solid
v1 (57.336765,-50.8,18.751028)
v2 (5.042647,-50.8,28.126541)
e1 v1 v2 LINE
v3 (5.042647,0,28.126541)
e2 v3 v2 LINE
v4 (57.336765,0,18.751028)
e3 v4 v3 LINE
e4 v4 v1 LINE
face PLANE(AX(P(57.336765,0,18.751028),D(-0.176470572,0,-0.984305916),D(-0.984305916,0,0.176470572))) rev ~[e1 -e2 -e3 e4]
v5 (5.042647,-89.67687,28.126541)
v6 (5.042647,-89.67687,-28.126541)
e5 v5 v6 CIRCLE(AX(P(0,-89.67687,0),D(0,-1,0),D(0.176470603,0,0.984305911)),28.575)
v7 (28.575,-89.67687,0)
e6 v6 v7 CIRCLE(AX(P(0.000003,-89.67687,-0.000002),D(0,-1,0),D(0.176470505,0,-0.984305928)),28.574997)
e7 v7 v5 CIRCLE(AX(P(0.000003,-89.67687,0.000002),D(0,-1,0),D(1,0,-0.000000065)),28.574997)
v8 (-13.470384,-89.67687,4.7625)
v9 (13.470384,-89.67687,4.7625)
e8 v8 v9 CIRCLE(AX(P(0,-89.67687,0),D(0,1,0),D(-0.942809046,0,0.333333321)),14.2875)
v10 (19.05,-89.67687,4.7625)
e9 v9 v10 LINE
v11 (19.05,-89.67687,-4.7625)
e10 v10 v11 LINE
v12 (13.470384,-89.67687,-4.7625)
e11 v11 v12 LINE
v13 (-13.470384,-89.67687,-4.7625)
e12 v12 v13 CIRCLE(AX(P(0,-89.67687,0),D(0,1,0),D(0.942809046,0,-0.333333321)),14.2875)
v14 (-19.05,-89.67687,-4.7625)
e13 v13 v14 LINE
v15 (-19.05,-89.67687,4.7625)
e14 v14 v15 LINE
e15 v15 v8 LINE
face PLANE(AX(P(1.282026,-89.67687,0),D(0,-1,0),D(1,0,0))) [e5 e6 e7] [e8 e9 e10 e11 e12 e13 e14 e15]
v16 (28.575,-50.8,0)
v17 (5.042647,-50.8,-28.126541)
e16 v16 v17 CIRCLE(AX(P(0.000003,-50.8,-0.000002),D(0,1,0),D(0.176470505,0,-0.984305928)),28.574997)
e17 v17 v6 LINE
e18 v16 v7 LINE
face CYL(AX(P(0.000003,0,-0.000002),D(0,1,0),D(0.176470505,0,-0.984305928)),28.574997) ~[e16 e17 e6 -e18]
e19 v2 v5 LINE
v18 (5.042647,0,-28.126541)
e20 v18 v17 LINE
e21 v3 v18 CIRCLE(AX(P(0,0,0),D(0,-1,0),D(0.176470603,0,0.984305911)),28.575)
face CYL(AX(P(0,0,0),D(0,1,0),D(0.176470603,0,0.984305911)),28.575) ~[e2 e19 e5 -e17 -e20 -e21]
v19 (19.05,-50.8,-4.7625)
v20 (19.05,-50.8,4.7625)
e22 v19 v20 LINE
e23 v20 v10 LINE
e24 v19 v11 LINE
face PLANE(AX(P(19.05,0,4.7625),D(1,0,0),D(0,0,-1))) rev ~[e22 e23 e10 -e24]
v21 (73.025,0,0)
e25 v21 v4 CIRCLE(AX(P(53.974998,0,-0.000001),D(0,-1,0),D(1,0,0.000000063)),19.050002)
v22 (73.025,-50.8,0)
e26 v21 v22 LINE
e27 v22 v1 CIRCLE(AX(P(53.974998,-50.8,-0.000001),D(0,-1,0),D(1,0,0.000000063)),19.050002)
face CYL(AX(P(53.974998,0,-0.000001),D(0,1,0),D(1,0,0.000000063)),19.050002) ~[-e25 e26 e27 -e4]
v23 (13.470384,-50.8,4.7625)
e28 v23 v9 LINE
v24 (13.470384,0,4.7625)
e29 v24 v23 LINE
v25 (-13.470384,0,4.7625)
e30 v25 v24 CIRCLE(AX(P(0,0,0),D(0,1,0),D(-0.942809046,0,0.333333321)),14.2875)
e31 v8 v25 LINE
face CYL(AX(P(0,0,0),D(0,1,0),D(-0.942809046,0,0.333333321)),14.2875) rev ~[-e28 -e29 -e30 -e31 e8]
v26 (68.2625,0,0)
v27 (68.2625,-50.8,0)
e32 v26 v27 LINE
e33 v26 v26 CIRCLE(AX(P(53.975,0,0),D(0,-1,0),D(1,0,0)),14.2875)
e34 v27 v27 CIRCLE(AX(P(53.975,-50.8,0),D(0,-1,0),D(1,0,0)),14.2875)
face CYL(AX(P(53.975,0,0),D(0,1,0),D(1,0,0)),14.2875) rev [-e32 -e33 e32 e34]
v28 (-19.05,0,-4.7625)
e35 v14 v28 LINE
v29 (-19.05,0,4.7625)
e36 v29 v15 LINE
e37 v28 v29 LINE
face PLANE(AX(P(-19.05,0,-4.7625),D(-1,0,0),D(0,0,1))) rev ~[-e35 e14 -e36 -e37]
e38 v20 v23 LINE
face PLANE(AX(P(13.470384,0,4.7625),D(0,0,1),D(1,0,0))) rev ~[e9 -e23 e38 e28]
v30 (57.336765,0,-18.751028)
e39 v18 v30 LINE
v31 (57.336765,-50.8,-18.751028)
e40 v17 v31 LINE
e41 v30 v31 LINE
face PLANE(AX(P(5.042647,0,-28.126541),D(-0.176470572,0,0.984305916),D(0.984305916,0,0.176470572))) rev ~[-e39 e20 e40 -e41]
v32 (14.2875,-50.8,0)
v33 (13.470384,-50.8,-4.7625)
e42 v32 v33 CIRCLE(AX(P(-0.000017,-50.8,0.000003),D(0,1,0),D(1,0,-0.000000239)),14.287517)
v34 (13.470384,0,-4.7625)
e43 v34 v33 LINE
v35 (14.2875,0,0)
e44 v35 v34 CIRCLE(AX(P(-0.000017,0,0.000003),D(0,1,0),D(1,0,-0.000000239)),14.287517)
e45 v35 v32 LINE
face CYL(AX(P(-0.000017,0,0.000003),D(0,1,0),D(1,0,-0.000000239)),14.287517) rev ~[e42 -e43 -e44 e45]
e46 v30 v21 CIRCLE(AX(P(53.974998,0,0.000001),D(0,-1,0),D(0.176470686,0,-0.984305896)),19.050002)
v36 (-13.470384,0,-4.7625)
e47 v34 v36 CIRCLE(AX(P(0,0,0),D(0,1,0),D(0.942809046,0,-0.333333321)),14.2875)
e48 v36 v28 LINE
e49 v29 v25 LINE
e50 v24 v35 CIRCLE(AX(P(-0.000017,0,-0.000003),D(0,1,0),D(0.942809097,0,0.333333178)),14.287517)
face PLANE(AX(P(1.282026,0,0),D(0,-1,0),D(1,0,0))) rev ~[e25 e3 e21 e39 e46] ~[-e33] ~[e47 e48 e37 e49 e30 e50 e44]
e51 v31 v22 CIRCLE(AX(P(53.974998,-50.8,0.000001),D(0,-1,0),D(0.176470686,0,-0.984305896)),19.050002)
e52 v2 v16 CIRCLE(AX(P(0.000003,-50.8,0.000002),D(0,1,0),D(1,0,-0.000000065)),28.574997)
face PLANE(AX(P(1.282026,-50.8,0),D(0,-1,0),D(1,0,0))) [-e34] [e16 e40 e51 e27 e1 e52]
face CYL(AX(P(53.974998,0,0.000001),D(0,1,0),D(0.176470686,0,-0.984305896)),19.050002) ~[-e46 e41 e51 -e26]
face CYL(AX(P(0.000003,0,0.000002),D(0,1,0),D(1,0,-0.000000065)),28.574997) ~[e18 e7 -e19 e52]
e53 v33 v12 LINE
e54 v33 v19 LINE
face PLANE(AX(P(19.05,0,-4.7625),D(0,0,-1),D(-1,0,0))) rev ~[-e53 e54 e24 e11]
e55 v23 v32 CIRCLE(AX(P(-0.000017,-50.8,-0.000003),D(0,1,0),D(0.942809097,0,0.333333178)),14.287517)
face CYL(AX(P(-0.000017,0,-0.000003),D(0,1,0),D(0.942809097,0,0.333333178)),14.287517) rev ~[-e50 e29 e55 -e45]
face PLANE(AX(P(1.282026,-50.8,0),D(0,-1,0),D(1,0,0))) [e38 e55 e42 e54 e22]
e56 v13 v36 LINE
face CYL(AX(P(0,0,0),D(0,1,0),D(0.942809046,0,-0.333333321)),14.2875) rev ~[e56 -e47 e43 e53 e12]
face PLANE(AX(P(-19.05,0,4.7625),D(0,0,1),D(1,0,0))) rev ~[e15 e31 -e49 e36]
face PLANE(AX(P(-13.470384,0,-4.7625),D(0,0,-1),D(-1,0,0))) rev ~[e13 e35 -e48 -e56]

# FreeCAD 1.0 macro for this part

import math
import FreeCAD as App
import Part
import Sketcher
Q = App.Units.Quantity

doc = App.newDocument("Part")
body = doc.addObject("PartDesign::Body", "Body")

# Sketch on XZ plane
sketch1 = body.newObject("Sketcher::SketchObject", "Sketch")
sketch1.AttachmentSupport = (doc.getObject("XZ_Plane"), [""])
sketch1.MapMode = "FlatFace"
sketch1.addGeometry(Part.ArcOfCircle(Part.Circle(App.Vector(0, 0, 0), App.Vector(0, 0, 1), 28.6), math.radians(80), math.radians(280)), False)
sketch1.addGeometry(Part.LineSegment(App.Vector(5, -28.1, 0), App.Vector(57.3, -18.8, 0)), False)
sketch1.addGeometry(Part.ArcOfCircle(Part.Circle(App.Vector(54, 0, 0), App.Vector(0, 0, 1), 19.1), math.radians(-80), math.radians(0)), False)
sketch1.addGeometry(Part.ArcOfCircle(Part.Circle(App.Vector(54, 0, 0), App.Vector(0, 0, 1), 19.1), math.radians(0), math.radians(80)), False)
sketch1.addGeometry(Part.LineSegment(App.Vector(57.3, 18.8, 0), App.Vector(5, 28.1, 0)), False)
sketch1.addGeometry(Part.LineSegment(App.Vector(-19.1, 4.8, 0), App.Vector(-13.5, 4.8, 0)), False)
sketch1.addGeometry(Part.ArcOfCircle(Part.Circle(App.Vector(0, 0, 0), App.Vector(0, 0, 1), 14.3), math.radians(19), math.radians(161)), False)
sketch1.addGeometry(Part.ArcOfCircle(Part.Circle(App.Vector(0, 0, 0), App.Vector(0, 0, 1), 14.3), math.radians(0), math.radians(19.47)), False)
sketch1.addGeometry(Part.ArcOfCircle(Part.Circle(App.Vector(0, 0, 0), App.Vector(0, 0, 1), 14.3), math.radians(-19.47), math.radians(0)), False)
sketch1.addGeometry(Part.ArcOfCircle(Part.Circle(App.Vector(0, 0, 0), App.Vector(0, 0, 1), 14.3), math.radians(-161), math.radians(-19)), False)
sketch1.addGeometry(Part.LineSegment(App.Vector(-13.5, -4.8, 0), App.Vector(-19.1, -4.8, 0)), False)
sketch1.addGeometry(Part.LineSegment(App.Vector(-19.1, -4.8, 0), App.Vector(-19.1, 4.8, 0)), False)
sketch1.addGeometry(Part.Circle(App.Vector(54, 0, 0), App.Vector(0, 0, 1), 14.3), False)
sketch1.addConstraint(Sketcher.Constraint("Tangent", 0, 2, 1, 1))
sketch1.addConstraint(Sketcher.Constraint("Tangent", 1, 2, 2, 1))
sketch1.addConstraint(Sketcher.Constraint("Tangent", 2, 2, 3, 1))
sketch1.addConstraint(Sketcher.Constraint("Tangent", 3, 2, 4, 1))
sketch1.addConstraint(Sketcher.Constraint("Tangent", 4, 2, 0, 1))
sketch1.addConstraint(Sketcher.Constraint("Coincident", 5, 2, 6, 2))
sketch1.addConstraint(Sketcher.Constraint("Tangent", 6, 1, 7, 2))
sketch1.addConstraint(Sketcher.Constraint("Tangent", 7, 1, 8, 2))
sketch1.addConstraint(Sketcher.Constraint("Tangent", 8, 1, 9, 2))
sketch1.addConstraint(Sketcher.Constraint("Coincident", 9, 1, 10, 1))
sketch1.addConstraint(Sketcher.Constraint("Coincident", 10, 2, 11, 1))
sketch1.addConstraint(Sketcher.Constraint("Coincident", 11, 2, 5, 1))
sketch1.addConstraint(Sketcher.Constraint("Horizontal", 5))
sketch1.addConstraint(Sketcher.Constraint("Horizontal", 10))
sketch1.addConstraint(Sketcher.Constraint("Vertical", 11))
sketch1.addConstraint(Sketcher.Constraint("Coincident", 0, 3, -1, 1))
sketch1.addConstraint(Sketcher.Constraint("Coincident", 6, 3, -1, 1))
sketch1.addConstraint(Sketcher.Constraint("Coincident", 9, 3, -1, 1))
sketch1.addConstraint(Sketcher.Constraint("Coincident", 12, 3, 2, 3))
sketch1.addConstraint(Sketcher.Constraint("Equal", 2, 3))
sketch1.addConstraint(Sketcher.Constraint("Equal", 7, 8))
sketch1.addConstraint(Sketcher.Constraint("Equal", 9, 12))
sketch1.addConstraint(Sketcher.Constraint("PointOnObject", 2, 3, -1))
sketch1.addConstraint(Sketcher.Constraint("PointOnObject", 2, 2, -1))
sketch1.addConstraint(Sketcher.Constraint("PointOnObject", 7, 1, -1))
sketch1.addConstraint(Sketcher.Constraint("Horizontal", 5, 2, 6, 1))
sketch1.addConstraint(Sketcher.Constraint("Horizontal", 8, 1, 9, 1))
sketch1.addConstraint(Sketcher.Constraint("Vertical", 6, 1, 8, 1))
sketch1.addConstraint(Sketcher.Constraint("Radius", 2, Q("0.7500001 in")))
sketch1.addConstraint(Sketcher.Constraint("Diameter", 12, Q("1.125 in")))
sketch1.addConstraint(Sketcher.Constraint("Radius", 0, Q("1.125 in")))
sketch1.addConstraint(Sketcher.Constraint("DistanceY", 11, 1, 11, 2, Q("0.375 in")))
sketch1.addConstraint(Sketcher.Constraint("DistanceX", 10, 2, -1, 1, Q("0.75 in")))
sketch1.addConstraint(Sketcher.Constraint("DistanceX", -1, 1, 2, 3, Q("2.1249999 in")))
pad1 = body.newObject("PartDesign::Pad", "Pad")
pad1.Profile = sketch1
pad1.Length = Q("2 in")

# Sketch on XZ plane
sketch2 = body.newObject("Sketcher::SketchObject", "Sketch001")
sketch2.AttachmentSupport = (doc.getObject("XZ_Plane"), [""])
sketch2.MapMode = "FlatFace"
sketch2.addGeometry(Part.ArcOfCircle(Part.Circle(App.Vector(0, 0, 0), App.Vector(0, 0, 1), 29), math.radians(-80), math.radians(0)), False)
sketch2.addGeometry(Part.ArcOfCircle(Part.Circle(App.Vector(0, 0, 0), App.Vector(0, 0, 1), 29), math.radians(0), math.radians(80)), False)
sketch2.addGeometry(Part.ArcOfCircle(Part.Circle(App.Vector(0, 0, 0), App.Vector(0, 0, 1), 29), math.radians(80), math.radians(280)), False)
sketch2.addGeometry(Part.LineSegment(App.Vector(-19, 5, 0), App.Vector(-13, 5, 0)), False)
sketch2.addGeometry(Part.ArcOfCircle(Part.Circle(App.Vector(0, 0, 0), App.Vector(0, 0, 1), 14), math.radians(19), math.radians(161)), False)
sketch2.addGeometry(Part.LineSegment(App.Vector(13, 5, 0), App.Vector(19, 5, 0)), False)
sketch2.addGeometry(Part.LineSegment(App.Vector(19, 5, 0), App.Vector(19, -5, 0)), False)
sketch2.addGeometry(Part.LineSegment(App.Vector(19, -5, 0), App.Vector(13, -5, 0)), False)
sketch2.addGeometry(Part.ArcOfCircle(Part.Circle(App.Vector(0, 0, 0), App.Vector(0, 0, 1), 14), math.radians(-161), math.radians(-19)), False)
sketch2.addGeometry(Part.LineSegment(App.Vector(-13, -5, 0), App.Vector(-19, -5, 0)), False)
sketch2.addGeometry(Part.LineSegment(App.Vector(-19, -5, 0), App.Vector(-19, 5, 0)), False)
sketch2.addConstraint(Sketcher.Constraint("Tangent", 0, 2, 1, 1))
sketch2.addConstraint(Sketcher.Constraint("Tangent", 1, 2, 2, 1))
sketch2.addConstraint(Sketcher.Constraint("Tangent", 2, 2, 0, 1))
sketch2.addConstraint(Sketcher.Constraint("Coincident", 3, 2, 4, 2))
sketch2.addConstraint(Sketcher.Constraint("Coincident", 4, 1, 5, 1))
sketch2.addConstraint(Sketcher.Constraint("Coincident", 5, 2, 6, 1))
sketch2.addConstraint(Sketcher.Constraint("Coincident", 6, 2, 7, 1))
sketch2.addConstraint(Sketcher.Constraint("Coincident", 7, 2, 8, 2))
sketch2.addConstraint(Sketcher.Constraint("Coincident", 8, 1, 9, 1))
sketch2.addConstraint(Sketcher.Constraint("Coincident", 9, 2, 10, 1))
sketch2.addConstraint(Sketcher.Constraint("Coincident", 10, 2, 3, 1))
sketch2.addConstraint(Sketcher.Constraint("Horizontal", 3))
sketch2.addConstraint(Sketcher.Constraint("Horizontal", 5))
sketch2.addConstraint(Sketcher.Constraint("Vertical", 6))
sketch2.addConstraint(Sketcher.Constraint("Horizontal", 7))
sketch2.addConstraint(Sketcher.Constraint("Horizontal", 9))
sketch2.addConstraint(Sketcher.Constraint("Vertical", 10))
sketch2.addConstraint(Sketcher.Constraint("Coincident", 0, 3, -1, 1))
sketch2.addConstraint(Sketcher.Constraint("Coincident", 4, 3, -1, 1))
sketch2.addConstraint(Sketcher.Constraint("Coincident", 8, 3, -1, 1))
sketch2.addConstraint(Sketcher.Constraint("Equal", 4, 8))
sketch2.addConstraint(Sketcher.Constraint("Symmetric", 5, 2, 9, 2, -1, 1))
sketch2.addConstraint(Sketcher.Constraint("PointOnObject", 0, 2, -1))
sketch2.addConstraint(Sketcher.Constraint("Horizontal", 3, 2, 4, 1))
sketch2.addConstraint(Sketcher.Constraint("Horizontal", 7, 2, 8, 1))
sketch2.addConstraint(Sketcher.Constraint("Vertical", 1, 2, 2, 2))
sketch2.addConstraint(Sketcher.Constraint("Radius", 0, Q("1.1249999 in")))
sketch2.addConstraint(Sketcher.Constraint("Radius", 4, Q("0.5625 in")))
sketch2.addConstraint(Sketcher.Constraint("DistanceY", 6, 2, 6, 1, Q("0.375 in")))
sketch2.addConstraint(Sketcher.Constraint("DistanceX", -1, 1, 5, 2, Q("0.75 in")))
sketch2.addConstraint(Sketcher.Constraint("DistanceY", -1, 1, 1, 2, 28.126541))
pad2 = body.newObject("PartDesign::Pad", "Pad001")
pad2.Profile = sketch2
pad2.Length = 89.67687

doc.recompute()
